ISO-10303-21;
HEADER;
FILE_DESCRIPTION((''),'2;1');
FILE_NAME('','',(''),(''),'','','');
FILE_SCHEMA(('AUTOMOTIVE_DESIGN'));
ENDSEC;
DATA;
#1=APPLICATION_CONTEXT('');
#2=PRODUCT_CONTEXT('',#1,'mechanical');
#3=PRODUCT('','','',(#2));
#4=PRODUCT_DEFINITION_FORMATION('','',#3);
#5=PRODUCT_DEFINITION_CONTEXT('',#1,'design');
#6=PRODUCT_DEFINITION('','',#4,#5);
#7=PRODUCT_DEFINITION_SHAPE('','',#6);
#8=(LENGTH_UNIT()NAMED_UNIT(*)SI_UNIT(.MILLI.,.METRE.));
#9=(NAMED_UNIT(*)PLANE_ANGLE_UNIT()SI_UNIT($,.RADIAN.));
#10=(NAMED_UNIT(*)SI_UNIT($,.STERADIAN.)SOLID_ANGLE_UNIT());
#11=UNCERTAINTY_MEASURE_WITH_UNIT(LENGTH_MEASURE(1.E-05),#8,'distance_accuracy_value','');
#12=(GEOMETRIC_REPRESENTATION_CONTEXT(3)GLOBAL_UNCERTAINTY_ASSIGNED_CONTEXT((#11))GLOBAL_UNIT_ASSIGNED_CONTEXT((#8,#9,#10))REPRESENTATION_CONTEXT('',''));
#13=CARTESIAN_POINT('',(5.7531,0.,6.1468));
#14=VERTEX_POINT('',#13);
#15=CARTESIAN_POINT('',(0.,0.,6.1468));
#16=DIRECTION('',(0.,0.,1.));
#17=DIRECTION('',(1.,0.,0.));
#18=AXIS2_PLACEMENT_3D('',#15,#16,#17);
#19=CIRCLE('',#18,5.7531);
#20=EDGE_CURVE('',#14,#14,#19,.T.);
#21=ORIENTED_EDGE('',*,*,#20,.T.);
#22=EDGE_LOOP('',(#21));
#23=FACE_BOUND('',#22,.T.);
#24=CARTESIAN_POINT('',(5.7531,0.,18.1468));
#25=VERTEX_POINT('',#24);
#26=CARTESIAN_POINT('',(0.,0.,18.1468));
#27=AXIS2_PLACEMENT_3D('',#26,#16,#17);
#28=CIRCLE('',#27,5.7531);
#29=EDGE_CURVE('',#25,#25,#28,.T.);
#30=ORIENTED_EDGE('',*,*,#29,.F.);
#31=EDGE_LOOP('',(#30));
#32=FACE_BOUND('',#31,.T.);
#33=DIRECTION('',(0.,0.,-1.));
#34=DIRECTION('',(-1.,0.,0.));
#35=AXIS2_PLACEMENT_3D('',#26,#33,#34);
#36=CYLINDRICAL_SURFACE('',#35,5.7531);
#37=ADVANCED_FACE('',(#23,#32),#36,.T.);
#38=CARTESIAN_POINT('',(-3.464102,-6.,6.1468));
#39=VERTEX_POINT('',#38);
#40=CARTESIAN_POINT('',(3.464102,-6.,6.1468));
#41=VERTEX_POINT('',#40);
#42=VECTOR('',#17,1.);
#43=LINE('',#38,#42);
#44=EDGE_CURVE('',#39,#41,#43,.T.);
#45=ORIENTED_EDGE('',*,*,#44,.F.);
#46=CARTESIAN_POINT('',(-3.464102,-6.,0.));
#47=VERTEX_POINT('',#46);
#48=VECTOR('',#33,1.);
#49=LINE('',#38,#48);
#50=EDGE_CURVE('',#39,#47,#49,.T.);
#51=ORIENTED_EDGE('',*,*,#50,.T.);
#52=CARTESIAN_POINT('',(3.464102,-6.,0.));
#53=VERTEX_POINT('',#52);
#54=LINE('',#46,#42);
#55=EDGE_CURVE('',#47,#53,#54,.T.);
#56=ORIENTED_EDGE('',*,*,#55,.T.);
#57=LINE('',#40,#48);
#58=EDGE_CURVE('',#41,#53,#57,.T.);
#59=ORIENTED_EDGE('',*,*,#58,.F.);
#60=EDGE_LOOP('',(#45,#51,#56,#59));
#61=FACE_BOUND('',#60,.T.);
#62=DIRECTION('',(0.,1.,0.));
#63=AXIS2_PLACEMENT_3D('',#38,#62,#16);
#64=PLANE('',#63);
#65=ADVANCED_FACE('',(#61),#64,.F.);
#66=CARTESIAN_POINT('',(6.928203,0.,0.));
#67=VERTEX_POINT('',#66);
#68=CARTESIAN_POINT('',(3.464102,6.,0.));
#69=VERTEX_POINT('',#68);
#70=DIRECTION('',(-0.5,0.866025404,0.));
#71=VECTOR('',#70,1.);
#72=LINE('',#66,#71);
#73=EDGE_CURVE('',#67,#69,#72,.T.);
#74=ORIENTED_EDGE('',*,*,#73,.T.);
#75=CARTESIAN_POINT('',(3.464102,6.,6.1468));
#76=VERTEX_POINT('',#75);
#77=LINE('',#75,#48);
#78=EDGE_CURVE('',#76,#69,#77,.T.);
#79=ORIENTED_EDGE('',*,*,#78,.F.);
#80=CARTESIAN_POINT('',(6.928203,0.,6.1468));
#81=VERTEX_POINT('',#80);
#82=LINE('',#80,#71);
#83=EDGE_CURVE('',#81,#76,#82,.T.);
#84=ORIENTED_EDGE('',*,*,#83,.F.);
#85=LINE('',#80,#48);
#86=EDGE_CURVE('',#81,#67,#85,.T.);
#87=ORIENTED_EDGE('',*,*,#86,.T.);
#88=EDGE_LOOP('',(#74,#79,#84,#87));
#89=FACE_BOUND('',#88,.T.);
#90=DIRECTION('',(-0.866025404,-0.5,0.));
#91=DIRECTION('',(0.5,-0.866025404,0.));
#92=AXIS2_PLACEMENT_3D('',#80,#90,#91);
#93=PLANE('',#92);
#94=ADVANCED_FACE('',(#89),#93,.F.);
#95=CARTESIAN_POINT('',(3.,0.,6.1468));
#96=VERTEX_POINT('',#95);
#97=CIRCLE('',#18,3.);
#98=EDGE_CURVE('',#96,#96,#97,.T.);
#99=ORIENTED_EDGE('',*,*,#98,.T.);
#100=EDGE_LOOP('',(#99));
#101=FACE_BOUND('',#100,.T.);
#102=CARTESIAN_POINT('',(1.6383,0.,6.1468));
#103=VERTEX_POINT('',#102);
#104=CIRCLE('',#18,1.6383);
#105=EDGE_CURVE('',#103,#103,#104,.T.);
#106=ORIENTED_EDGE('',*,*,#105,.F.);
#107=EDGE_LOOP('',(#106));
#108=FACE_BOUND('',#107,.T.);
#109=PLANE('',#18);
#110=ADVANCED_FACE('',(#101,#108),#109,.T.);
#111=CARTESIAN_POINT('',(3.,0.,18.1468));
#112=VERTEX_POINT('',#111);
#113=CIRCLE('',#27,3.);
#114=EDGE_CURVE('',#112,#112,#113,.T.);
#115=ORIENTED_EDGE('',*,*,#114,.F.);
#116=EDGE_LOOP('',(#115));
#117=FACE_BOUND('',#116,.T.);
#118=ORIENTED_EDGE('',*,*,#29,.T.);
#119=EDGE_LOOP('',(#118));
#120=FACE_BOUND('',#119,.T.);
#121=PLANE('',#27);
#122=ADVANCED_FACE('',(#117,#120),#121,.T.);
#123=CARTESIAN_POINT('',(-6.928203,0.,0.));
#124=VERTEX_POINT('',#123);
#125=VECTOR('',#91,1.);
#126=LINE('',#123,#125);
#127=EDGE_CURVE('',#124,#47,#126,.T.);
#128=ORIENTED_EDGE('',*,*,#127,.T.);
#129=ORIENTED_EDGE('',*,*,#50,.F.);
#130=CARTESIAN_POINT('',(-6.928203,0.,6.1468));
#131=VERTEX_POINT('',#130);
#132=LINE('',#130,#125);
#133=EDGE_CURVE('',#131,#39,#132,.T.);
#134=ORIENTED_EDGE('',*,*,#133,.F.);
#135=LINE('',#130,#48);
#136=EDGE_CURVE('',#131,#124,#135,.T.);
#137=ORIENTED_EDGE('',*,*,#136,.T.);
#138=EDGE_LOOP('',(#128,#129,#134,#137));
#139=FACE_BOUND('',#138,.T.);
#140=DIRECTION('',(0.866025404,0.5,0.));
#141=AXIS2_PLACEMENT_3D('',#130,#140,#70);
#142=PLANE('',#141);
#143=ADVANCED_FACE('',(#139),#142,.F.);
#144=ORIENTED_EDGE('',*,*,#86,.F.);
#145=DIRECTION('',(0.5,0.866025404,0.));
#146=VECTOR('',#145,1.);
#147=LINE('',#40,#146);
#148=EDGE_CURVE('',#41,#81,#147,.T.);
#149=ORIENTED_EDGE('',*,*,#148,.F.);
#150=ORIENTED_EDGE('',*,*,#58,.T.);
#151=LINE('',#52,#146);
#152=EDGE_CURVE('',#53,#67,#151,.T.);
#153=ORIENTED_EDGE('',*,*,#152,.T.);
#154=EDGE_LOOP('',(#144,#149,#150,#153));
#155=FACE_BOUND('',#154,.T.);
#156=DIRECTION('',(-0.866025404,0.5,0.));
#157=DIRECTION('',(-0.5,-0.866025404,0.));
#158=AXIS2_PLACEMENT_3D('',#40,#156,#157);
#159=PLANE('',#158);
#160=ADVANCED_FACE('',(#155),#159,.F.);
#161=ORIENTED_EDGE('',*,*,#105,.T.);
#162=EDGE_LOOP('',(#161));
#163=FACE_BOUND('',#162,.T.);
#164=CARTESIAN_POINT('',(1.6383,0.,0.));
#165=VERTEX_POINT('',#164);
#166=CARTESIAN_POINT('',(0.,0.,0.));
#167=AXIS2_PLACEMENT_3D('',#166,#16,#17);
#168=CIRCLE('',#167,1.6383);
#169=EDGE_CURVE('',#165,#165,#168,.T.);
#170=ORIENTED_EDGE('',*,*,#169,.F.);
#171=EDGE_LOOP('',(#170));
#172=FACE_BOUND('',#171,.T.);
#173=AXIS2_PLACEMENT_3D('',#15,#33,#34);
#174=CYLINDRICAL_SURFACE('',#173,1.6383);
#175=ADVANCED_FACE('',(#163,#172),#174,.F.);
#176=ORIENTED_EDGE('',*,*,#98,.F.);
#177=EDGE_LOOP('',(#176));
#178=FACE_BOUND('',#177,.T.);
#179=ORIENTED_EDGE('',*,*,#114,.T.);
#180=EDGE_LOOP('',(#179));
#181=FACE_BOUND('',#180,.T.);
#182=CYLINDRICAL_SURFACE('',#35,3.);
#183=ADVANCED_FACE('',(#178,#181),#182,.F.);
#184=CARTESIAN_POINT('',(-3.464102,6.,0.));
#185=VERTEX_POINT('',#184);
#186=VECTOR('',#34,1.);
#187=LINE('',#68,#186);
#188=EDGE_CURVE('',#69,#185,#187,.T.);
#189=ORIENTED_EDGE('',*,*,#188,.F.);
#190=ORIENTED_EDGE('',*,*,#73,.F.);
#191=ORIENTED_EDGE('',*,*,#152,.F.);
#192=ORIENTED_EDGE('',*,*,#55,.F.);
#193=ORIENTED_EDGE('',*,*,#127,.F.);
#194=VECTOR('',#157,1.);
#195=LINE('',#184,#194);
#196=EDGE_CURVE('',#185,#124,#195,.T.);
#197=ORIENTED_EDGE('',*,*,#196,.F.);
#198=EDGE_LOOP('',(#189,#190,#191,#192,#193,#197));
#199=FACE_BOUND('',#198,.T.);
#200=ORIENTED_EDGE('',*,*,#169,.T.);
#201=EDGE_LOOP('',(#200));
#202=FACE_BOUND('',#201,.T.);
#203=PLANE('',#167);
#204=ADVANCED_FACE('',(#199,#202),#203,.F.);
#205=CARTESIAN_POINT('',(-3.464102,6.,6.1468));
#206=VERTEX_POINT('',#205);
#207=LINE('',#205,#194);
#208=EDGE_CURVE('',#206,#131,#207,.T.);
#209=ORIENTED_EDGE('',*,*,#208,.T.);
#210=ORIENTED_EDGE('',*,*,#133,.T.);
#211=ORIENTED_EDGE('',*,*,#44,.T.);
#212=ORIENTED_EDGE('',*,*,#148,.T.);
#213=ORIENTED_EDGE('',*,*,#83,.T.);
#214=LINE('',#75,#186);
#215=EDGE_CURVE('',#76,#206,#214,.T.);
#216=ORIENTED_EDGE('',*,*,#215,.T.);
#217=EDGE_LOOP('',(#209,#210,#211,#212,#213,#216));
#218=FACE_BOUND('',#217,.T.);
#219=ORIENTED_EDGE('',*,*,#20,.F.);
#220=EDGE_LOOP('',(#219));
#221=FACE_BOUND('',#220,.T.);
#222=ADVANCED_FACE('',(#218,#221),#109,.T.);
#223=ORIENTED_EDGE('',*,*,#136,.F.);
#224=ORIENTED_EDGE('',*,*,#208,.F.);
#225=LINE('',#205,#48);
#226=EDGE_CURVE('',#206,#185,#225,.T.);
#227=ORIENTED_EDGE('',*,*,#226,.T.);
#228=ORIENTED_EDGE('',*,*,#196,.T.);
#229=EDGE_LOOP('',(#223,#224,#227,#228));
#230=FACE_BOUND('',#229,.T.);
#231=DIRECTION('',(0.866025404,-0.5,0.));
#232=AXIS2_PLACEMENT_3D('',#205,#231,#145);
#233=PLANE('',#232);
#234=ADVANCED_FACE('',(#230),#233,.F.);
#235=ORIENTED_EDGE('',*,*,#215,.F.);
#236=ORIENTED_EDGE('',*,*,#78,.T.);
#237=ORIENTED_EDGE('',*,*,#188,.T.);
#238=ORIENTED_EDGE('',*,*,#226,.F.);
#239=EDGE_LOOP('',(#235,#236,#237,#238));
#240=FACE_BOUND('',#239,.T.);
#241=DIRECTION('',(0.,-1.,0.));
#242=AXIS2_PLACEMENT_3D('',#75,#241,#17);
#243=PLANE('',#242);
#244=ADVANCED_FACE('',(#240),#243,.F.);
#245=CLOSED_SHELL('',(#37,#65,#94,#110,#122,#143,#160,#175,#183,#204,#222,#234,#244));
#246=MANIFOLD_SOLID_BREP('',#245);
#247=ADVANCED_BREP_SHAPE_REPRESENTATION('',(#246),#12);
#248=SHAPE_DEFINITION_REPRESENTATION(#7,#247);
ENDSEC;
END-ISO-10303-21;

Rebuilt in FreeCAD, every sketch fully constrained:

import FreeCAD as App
import Part
import Sketcher
Q = App.Units.Quantity


def add_polygon(sketch, points):
    """Adds a closed chain of lines whose ends are joined by coincident constraints."""
    first, n = sketch.GeometryCount, len(points)
    for a, b in zip(points, points[1:] + points[:1]):
        sketch.addGeometry(Part.LineSegment(App.Vector(*a, 0), App.Vector(*b, 0)), False)
    for i in range(n):
        sketch.addConstraint(Sketcher.Constraint("Coincident", first + i, 2, first + (i + 1) % n, 1))

doc = App.newDocument("Part")
body = doc.addObject("PartDesign::Body", "Body")

# Sketch on XY plane
sketch1 = doc.addObject("Sketcher::SketchObject", "Sketch")
body.addObject(sketch1)
sketch1.AttachmentSupport = (doc.XY_Plane, [""])
sketch1.MapMode = "FlatFace"
add_polygon(sketch1, [(6.9, 0), (3.5, 6), (-3.5, 6), (-6.9, 0), (-3.5, -6), (3.5, -6)])  # lines 0-5
sketch1.addGeometry(Part.Circle(App.Vector(0, 0, 0), App.Vector(0, 0, 1), 1.6), False)  # 6
sketch1.addConstraint([
    Sketcher.Constraint("Horizontal", 1),
    Sketcher.Constraint("Horizontal", 4),
    Sketcher.Constraint("Coincident", 6, 3, -1, 1),
    Sketcher.Constraint("Symmetric", 0, 2, 3, 2, -1, 1),
    Sketcher.Constraint("Symmetric", 2, 2, 5, 2, -1, 1),
    Sketcher.Constraint("PointOnObject", 2, 2, -1),
    Sketcher.Constraint("Parallel", 2, 5),
    Sketcher.Constraint("Vertical", 1, 2, 3, 2),
    Sketcher.Constraint("Diameter", 6, Q("0.129 in")),
    Sketcher.Constraint("Angle", 0, Q("120 deg")),
    Sketcher.Constraint("DistanceX", -1, 1, 0, 2, Q("3.464102 mm")),
    Sketcher.Constraint("DistanceY", -1, 1, 0, 2, Q("6 mm")),
])
pad1 = doc.addObject("PartDesign::Pad", "Pad")
body.addObject(pad1)
pad1.Profile = sketch1
pad1.Length = Q("0.242 in")

# Sketch on XY plane
sketch2 = doc.addObject("Sketcher::SketchObject", "Sketch001")
body.addObject(sketch2)
sketch2.AttachmentSupport = (doc.XY_Plane, [""])
sketch2.MapMode = "FlatFace"
sketch2.AttachmentOffset = App.Placement(App.Vector(0, 0, 0.242 * 25.4), App.Rotation())
sketch2.addGeometry([
    Part.Circle(App.Vector(0, 0, 0), App.Vector(0, 0, 1), 5.8),
    Part.Circle(App.Vector(0, 0, 0), App.Vector(0, 0, 1), 3),
], False)
sketch2.addConstraint([
    Sketcher.Constraint("Coincident", 0, 3, -1, 1),
    Sketcher.Constraint("Coincident", 1, 3, -1, 1),
    Sketcher.Constraint("Diameter", 0, Q("0.453 in")),
    Sketcher.Constraint("Diameter", 1, Q("6 mm")),
])
pad2 = doc.addObject("PartDesign::Pad", "Pad001")
body.addObject(pad2)
pad2.Profile = sketch2
pad2.Length = 12

doc.recompute()
